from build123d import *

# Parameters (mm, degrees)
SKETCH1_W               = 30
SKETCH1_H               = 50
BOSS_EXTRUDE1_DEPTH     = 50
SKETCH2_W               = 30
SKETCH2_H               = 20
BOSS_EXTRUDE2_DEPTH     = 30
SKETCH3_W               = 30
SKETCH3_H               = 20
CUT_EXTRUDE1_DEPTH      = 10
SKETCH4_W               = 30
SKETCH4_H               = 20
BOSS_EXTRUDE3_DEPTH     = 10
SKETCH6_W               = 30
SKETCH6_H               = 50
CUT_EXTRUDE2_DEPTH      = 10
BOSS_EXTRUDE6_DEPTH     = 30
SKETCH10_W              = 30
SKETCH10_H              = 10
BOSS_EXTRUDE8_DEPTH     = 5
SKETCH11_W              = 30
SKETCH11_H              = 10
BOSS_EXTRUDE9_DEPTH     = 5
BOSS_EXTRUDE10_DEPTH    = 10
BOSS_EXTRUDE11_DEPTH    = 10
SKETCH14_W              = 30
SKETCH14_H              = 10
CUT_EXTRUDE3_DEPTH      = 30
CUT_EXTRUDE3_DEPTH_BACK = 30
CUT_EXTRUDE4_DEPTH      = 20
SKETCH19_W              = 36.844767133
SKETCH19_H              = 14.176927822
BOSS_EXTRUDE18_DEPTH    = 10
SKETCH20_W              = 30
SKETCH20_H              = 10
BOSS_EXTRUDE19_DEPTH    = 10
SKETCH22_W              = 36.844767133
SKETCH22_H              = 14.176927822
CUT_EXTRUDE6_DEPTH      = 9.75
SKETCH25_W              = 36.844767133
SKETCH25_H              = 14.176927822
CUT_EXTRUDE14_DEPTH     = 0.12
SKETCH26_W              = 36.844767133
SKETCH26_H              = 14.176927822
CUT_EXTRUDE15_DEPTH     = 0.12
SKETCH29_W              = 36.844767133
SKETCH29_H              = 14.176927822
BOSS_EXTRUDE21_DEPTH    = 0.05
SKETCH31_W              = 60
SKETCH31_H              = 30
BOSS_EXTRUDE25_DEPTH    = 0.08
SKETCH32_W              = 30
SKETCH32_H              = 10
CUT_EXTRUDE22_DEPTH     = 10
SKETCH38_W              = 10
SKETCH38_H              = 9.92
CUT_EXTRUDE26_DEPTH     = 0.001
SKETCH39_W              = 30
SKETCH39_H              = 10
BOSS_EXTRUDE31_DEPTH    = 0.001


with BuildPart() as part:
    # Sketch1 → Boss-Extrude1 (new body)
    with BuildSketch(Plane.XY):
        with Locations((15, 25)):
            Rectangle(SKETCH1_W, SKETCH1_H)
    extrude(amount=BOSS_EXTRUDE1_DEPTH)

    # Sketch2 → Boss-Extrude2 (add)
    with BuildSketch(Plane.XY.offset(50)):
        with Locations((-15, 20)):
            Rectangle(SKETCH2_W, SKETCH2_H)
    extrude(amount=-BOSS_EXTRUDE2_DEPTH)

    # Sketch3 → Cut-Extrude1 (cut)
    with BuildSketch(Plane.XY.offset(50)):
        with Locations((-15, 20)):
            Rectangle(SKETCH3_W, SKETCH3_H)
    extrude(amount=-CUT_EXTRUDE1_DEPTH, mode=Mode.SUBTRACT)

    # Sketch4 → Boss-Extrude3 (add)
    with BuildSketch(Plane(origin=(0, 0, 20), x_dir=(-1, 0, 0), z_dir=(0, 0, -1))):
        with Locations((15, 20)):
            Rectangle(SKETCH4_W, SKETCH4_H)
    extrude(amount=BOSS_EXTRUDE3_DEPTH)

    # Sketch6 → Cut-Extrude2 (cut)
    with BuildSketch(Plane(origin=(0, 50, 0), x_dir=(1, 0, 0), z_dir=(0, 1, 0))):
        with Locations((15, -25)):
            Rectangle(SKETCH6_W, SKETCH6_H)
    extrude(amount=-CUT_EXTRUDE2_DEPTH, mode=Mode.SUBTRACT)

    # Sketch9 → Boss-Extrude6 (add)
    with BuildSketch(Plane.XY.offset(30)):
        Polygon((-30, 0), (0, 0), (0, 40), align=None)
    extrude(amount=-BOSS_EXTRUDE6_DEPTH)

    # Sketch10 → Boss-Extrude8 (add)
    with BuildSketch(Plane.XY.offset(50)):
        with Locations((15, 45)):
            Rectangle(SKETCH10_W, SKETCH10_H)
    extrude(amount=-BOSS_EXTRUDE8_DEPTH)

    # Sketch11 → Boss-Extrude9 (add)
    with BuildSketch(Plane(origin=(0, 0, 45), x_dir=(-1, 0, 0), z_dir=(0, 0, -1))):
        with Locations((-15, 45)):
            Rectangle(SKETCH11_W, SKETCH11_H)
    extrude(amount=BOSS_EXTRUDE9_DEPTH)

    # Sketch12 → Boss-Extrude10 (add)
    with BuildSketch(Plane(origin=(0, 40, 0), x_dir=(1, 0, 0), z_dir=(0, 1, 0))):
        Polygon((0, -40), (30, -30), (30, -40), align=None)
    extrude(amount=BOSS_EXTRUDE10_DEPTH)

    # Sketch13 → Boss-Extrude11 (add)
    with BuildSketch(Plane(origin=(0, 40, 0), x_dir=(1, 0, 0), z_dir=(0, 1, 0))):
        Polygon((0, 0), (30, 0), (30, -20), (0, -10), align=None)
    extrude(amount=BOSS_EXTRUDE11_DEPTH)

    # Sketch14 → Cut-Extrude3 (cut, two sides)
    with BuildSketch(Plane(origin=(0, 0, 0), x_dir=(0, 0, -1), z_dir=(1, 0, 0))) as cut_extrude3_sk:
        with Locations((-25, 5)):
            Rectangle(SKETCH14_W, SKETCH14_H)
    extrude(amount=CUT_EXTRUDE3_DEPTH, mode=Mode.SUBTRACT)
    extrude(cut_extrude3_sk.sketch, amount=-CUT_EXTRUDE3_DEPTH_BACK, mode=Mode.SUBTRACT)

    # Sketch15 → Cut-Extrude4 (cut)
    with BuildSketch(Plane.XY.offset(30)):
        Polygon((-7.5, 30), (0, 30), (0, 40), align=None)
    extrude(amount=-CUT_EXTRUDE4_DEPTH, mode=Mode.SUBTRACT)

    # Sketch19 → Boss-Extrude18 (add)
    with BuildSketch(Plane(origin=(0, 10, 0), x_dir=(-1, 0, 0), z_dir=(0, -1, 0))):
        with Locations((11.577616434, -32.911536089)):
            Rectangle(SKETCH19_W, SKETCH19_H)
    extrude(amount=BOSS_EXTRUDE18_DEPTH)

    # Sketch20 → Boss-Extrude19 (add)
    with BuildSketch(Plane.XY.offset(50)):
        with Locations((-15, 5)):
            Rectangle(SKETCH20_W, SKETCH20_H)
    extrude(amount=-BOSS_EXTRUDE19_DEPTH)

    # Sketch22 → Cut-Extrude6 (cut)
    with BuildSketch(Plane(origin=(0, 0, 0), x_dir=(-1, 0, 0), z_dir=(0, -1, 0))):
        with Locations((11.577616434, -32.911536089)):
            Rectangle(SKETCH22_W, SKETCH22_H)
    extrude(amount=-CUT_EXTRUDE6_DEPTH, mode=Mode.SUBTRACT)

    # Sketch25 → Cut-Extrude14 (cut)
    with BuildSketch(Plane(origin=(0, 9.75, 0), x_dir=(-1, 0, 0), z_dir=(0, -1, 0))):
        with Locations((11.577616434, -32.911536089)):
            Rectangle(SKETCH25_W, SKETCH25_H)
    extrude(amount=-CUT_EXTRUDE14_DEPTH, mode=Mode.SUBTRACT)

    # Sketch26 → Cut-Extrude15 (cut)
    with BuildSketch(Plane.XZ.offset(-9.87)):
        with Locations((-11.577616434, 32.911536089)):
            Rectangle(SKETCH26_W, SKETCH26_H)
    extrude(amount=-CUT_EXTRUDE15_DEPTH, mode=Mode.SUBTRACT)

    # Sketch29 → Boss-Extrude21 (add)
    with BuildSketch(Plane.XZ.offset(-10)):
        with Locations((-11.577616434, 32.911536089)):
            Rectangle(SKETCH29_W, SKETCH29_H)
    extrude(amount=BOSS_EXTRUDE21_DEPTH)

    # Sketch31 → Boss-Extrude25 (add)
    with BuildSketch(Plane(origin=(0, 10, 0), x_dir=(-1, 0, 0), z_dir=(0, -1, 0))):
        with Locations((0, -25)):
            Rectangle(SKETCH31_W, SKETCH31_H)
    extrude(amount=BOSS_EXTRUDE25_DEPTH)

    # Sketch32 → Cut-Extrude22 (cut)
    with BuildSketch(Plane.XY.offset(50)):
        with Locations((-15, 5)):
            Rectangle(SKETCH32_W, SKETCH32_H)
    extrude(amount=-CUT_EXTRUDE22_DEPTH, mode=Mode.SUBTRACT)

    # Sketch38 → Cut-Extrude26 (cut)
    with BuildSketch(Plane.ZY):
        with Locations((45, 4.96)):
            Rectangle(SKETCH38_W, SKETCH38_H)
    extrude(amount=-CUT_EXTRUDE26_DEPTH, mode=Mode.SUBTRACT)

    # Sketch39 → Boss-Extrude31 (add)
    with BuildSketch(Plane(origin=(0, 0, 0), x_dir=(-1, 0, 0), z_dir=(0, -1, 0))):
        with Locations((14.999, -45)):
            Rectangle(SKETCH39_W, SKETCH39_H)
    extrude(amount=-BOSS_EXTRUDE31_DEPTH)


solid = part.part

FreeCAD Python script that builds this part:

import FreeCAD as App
import Part
import Sketcher
from FreeCAD import Vector
Q = App.Units.Quantity


def add_polygon(sketch, points):
    """Adds a closed chain of lines whose ends are joined by coincident constraints."""
    first, n = sketch.GeometryCount, len(points)
    for a, b in zip(points, points[1:] + points[:1]):
        sketch.addGeometry(Part.LineSegment(App.Vector(*a, 0), App.Vector(*b, 0)), False)
    for i in range(n):
        sketch.addConstraint(Sketcher.Constraint("Coincident", first + i, 2, first + (i + 1) % n, 1))

doc = App.newDocument("Part")
body = doc.addObject("PartDesign::Body", "Body")

# Sketch on XY plane
sketch1 = body.newObject("Sketcher::SketchObject", "Sketch")
sketch1.AttachmentSupport = (doc.getObject("XY_Plane"), [""])
sketch1.MapMode = "FlatFace"
add_polygon(sketch1, [(0, 50), (0, 0), (30, 0), (30, 50)])  # lines 0-3
sketch1.addConstraint([
    Sketcher.Constraint("Vertical", 0),
    Sketcher.Constraint("Horizontal", 1),
    Sketcher.Constraint("Vertical", 2),
    Sketcher.Constraint("Horizontal", 3),
    Sketcher.Constraint("Coincident", 0, 2, -1, 1),
    Sketcher.Constraint("DistanceX", 1, 1, 1, 2, Q("30 mm")),
    Sketcher.Constraint("DistanceY", 0, 2, 0, 1, Q("50 mm")),
])
pad1 = body.newObject("PartDesign::Pad", "Pad")
pad1.Profile = sketch1
pad1.Length = 50

# Sketch on XY plane
sketch2 = body.newObject("Sketcher::SketchObject", "Sketch001")
sketch2.AttachmentSupport = (doc.getObject("XY_Plane"), [""])
sketch2.MapMode = "FlatFace"
sketch2.AttachmentOffset = App.Placement(Vector(0, 0, 50), App.Rotation())
add_polygon(sketch2, [(-30, 30), (-30, 10), (0, 10), (0, 30)])  # lines 0-3
sketch2.addConstraint([
    Sketcher.Constraint("Vertical", 0),
    Sketcher.Constraint("Horizontal", 1),
    Sketcher.Constraint("Vertical", 2),
    Sketcher.Constraint("Horizontal", 3),
    Sketcher.Constraint("PointOnObject", 1, 2, -2),
    Sketcher.Constraint("DistanceX", 1, 1, 1, 2, Q("30 mm")),
    Sketcher.Constraint("DistanceY", 0, 2, 0, 1, Q("20 mm")),
    Sketcher.Constraint("DistanceY", -1, 1, 0, 2, Q("10 mm")),
])
pad2 = body.newObject("PartDesign::Pad", "Pad001")
pad2.Profile = sketch2
pad2.Length = 30
pad2.Reversed = True

# Sketch on XY plane
sketch3 = body.newObject("Sketcher::SketchObject", "Sketch002")
sketch3.AttachmentSupport = (doc.getObject("XY_Plane"), [""])
sketch3.MapMode = "FlatFace"
sketch3.AttachmentOffset = App.Placement(Vector(0, 0, 50), App.Rotation())
add_polygon(sketch3, [(-30, 30), (-30, 10), (0, 10), (0, 30)])  # lines 0-3
sketch3.addConstraint([
    Sketcher.Constraint("Vertical", 0),
    Sketcher.Constraint("Horizontal", 1),
    Sketcher.Constraint("Vertical", 2),
    Sketcher.Constraint("Horizontal", 3),
    Sketcher.Constraint("PointOnObject", 1, 2, -2),
    Sketcher.Constraint("DistanceX", 1, 1, 1, 2, Q("30 mm")),
    Sketcher.Constraint("DistanceY", 0, 2, 0, 1, Q("20 mm")),
    Sketcher.Constraint("DistanceY", -1, 1, 0, 2, Q("10 mm")),
])
pocket1 = body.newObject("PartDesign::Pocket", "Pocket")
pocket1.Profile = sketch3
pocket1.Length = 10

# Sketch on XY plane
sketch4 = body.newObject("Sketcher::SketchObject", "Sketch003")
sketch4.AttachmentSupport = (doc.getObject("XY_Plane"), [""])
sketch4.MapMode = "FlatFace"
sketch4.AttachmentOffset = App.Placement(Vector(0, 0, 20), App.Rotation())
add_polygon(sketch4, [(0, 30), (0, 10), (-30, 10), (-30, 30)])  # lines 0-3
sketch4.addConstraint([
    Sketcher.Constraint("Vertical", 0),
    Sketcher.Constraint("Horizontal", 1),
    Sketcher.Constraint("Vertical", 2),
    Sketcher.Constraint("Horizontal", 3),
    Sketcher.Constraint("PointOnObject", 0, 2, -2),
    Sketcher.Constraint("DistanceX", 1, 2, 1, 1, Q("30 mm")),
    Sketcher.Constraint("DistanceY", 0, 2, 0, 1, Q("20 mm")),
    Sketcher.Constraint("DistanceY", -1, 1, 0, 2, Q("10 mm")),
])
pad3 = body.newObject("PartDesign::Pad", "Pad002")
pad3.Profile = sketch4
pad3.Length = 10
pad3.Reversed = True

# Sketch on XZ plane
sketch5 = body.newObject("Sketcher::SketchObject", "Sketch004")
sketch5.AttachmentSupport = (doc.getObject("XZ_Plane"), [""])
sketch5.MapMode = "FlatFace"
sketch5.AttachmentOffset = App.Placement(Vector(0, 0, -50), App.Rotation())
add_polygon(sketch5, [(0, 0), (0, 50), (30, 50), (30, 0)])  # lines 0-3
sketch5.addConstraint([
    Sketcher.Constraint("Vertical", 0),
    Sketcher.Constraint("Horizontal", 1),
    Sketcher.Constraint("Vertical", 2),
    Sketcher.Constraint("Horizontal", 3),
    Sketcher.Constraint("Coincident", 3, 2, -1, 1),
    Sketcher.Constraint("DistanceX", 1, 1, 1, 2, Q("30 mm")),
    Sketcher.Constraint("DistanceY", 0, 1, 0, 2, Q("50 mm")),
])
pocket2 = body.newObject("PartDesign::Pocket", "Pocket001")
pocket2.Profile = sketch5
pocket2.Length = 10
pocket2.Reversed = True

# Sketch on XY plane
sketch6 = body.newObject("Sketcher::SketchObject", "Sketch005")
sketch6.AttachmentSupport = (doc.getObject("XY_Plane"), [""])
sketch6.MapMode = "FlatFace"
sketch6.AttachmentOffset = App.Placement(Vector(0, 0, 30), App.Rotation())
add_polygon(sketch6, [(-30, 0), (0, 0), (0, 40)])  # lines 0-2
sketch6.addConstraint([
    Sketcher.Constraint("Horizontal", 0),
    Sketcher.Constraint("Vertical", 1),
    Sketcher.Constraint("Coincident", 0, 2, -1, 1),
    Sketcher.Constraint("DistanceX", 0, 1, 0, 2, Q("30 mm")),
    Sketcher.Constraint("DistanceY", 1, 1, 1, 2, Q("40 mm")),
])
pad4 = body.newObject("PartDesign::Pad", "Pad003")
pad4.Profile = sketch6
pad4.Length = 30
pad4.Reversed = True

# Sketch on XY plane
sketch7 = body.newObject("Sketcher::SketchObject", "Sketch006")
sketch7.AttachmentSupport = (doc.getObject("XY_Plane"), [""])
sketch7.MapMode = "FlatFace"
sketch7.AttachmentOffset = App.Placement(Vector(0, 0, 50), App.Rotation())
add_polygon(sketch7, [(0, 50), (0, 40), (30, 40), (30, 50)])  # lines 0-3
sketch7.addConstraint([
    Sketcher.Constraint("Vertical", 0),
    Sketcher.Constraint("Horizontal", 1),
    Sketcher.Constraint("Vertical", 2),
    Sketcher.Constraint("Horizontal", 3),
    Sketcher.Constraint("PointOnObject", 0, 2, -2),
    Sketcher.Constraint("DistanceX", 1, 1, 1, 2, Q("30 mm")),
    Sketcher.Constraint("DistanceY", 0, 2, 0, 1, Q("10 mm")),
    Sketcher.Constraint("DistanceY", -1, 1, 0, 2, Q("40 mm")),
])
pad5 = body.newObject("PartDesign::Pad", "Pad004")
pad5.Profile = sketch7
pad5.Length = 5
pad5.Reversed = True

# Sketch on XY plane
sketch8 = body.newObject("Sketcher::SketchObject", "Sketch007")
sketch8.AttachmentSupport = (doc.getObject("XY_Plane"), [""])
sketch8.MapMode = "FlatFace"
sketch8.AttachmentOffset = App.Placement(Vector(0, 0, 45), App.Rotation())
add_polygon(sketch8, [(30, 50), (30, 40), (0, 40), (0, 50)])  # lines 0-3
sketch8.addConstraint([
    Sketcher.Constraint("Vertical", 0),
    Sketcher.Constraint("Horizontal", 1),
    Sketcher.Constraint("Vertical", 2),
    Sketcher.Constraint("Horizontal", 3),
    Sketcher.Constraint("PointOnObject", 1, 2, -2),
    Sketcher.Constraint("DistanceX", 1, 2, 1, 1, Q("30 mm")),
    Sketcher.Constraint("DistanceY", 0, 2, 0, 1, Q("10 mm")),
    Sketcher.Constraint("DistanceY", -1, 1, 0, 2, Q("40 mm")),
])
pad6 = body.newObject("PartDesign::Pad", "Pad005")
pad6.Profile = sketch8
pad6.Length = 5
pad6.Reversed = True

# Sketch on XZ plane
sketch9 = body.newObject("Sketcher::SketchObject", "Sketch008")
sketch9.AttachmentSupport = (doc.getObject("XZ_Plane"), [""])
sketch9.MapMode = "FlatFace"
sketch9.AttachmentOffset = App.Placement(Vector(0, 0, -40), App.Rotation())
add_polygon(sketch9, [(30, 30), (0, 40), (30, 40)])  # lines 0-2
sketch9.addConstraint([
    Sketcher.Constraint("Horizontal", 1),
    Sketcher.Constraint("Vertical", 2),
    Sketcher.Constraint("PointOnObject", 0, 2, -2),
    Sketcher.Constraint("DistanceX", 1, 1, 1, 2, Q("30 mm")),
    Sketcher.Constraint("DistanceY", 2, 2, 2, 1, Q("10 mm")),
    Sketcher.Constraint("DistanceY", -1, 1, 0, 2, Q("40 mm")),
])
pad7 = body.newObject("PartDesign::Pad", "Pad006")
pad7.Profile = sketch9
pad7.Length = 10
pad7.Reversed = True

# Sketch on XZ plane
sketch10 = body.newObject("Sketcher::SketchObject", "Sketch009")
sketch10.AttachmentSupport = (doc.getObject("XZ_Plane"), [""])
sketch10.MapMode = "FlatFace"
sketch10.AttachmentOffset = App.Placement(Vector(0, 0, -40), App.Rotation())
add_polygon(sketch10, [(30, 0), (0, 0), (0, 10), (30, 20)])  # lines 0-3
sketch10.addConstraint([
    Sketcher.Constraint("Horizontal", 0),
    Sketcher.Constraint("Vertical", 1),
    Sketcher.Constraint("Vertical", 3),
    Sketcher.Constraint("Coincident", 0, 2, -1, 1),
    Sketcher.Constraint("DistanceX", 0, 2, 0, 1, Q("30 mm")),
    Sketcher.Constraint("DistanceY", 1, 1, 1, 2, Q("10 mm")),
    Sketcher.Constraint("DistanceY", 3, 2, 3, 1, Q("20 mm")),
])
pad8 = body.newObject("PartDesign::Pad", "Pad007")
pad8.Profile = sketch10
pad8.Length = 10
pad8.Reversed = True

# Sketch on YZ plane
sketch11 = body.newObject("Sketcher::SketchObject", "Sketch010")
sketch11.AttachmentSupport = (doc.getObject("YZ_Plane"), [""])
sketch11.MapMode = "FlatFace"
add_polygon(sketch11, [(10, 40), (0, 40), (0, 10), (10, 10)])  # lines 0-3
sketch11.addConstraint([
    Sketcher.Constraint("Horizontal", 0),
    Sketcher.Constraint("Vertical", 1),
    Sketcher.Constraint("Horizontal", 2),
    Sketcher.Constraint("Vertical", 3),
    Sketcher.Constraint("PointOnObject", 0, 2, -2),
    Sketcher.Constraint("DistanceX", 0, 2, 0, 1, Q("10 mm")),
    Sketcher.Constraint("DistanceY", 1, 2, 1, 1, Q("30 mm")),
    Sketcher.Constraint("DistanceY", -1, 1, 0, 2, Q("40 mm")),
])
pocket3 = body.newObject("PartDesign::Pocket", "Pocket002")
pocket3.Profile = sketch11
pocket3.Type = "ThroughAll"
pocket3.Midplane = True

# Sketch on XY plane
sketch12 = body.newObject("Sketcher::SketchObject", "Sketch011")
sketch12.AttachmentSupport = (doc.getObject("XY_Plane"), [""])
sketch12.MapMode = "FlatFace"
sketch12.AttachmentOffset = App.Placement(Vector(0, 0, 30), App.Rotation())
add_polygon(sketch12, [(-8, 30), (0, 30), (0, 40)])  # lines 0-2
sketch12.addConstraint([
    Sketcher.Constraint("Horizontal", 0),
    Sketcher.Constraint("Vertical", 1),
    Sketcher.Constraint("PointOnObject", 0, 2, -2),
    Sketcher.Constraint("DistanceY", 1, 1, 1, 2, Q("10 mm")),
    Sketcher.Constraint("DistanceX", 0, 1, 0, 2, Q("7.5 mm")),
    Sketcher.Constraint("DistanceY", -1, 1, 0, 2, Q("30 mm")),
])
pocket4 = body.newObject("PartDesign::Pocket", "Pocket003")
pocket4.Profile = sketch12
pocket4.Length = 20

# Sketch on XZ plane
sketch13 = body.newObject("Sketcher::SketchObject", "Sketch012")
sketch13.AttachmentSupport = (doc.getObject("XZ_Plane"), [""])
sketch13.MapMode = "FlatFace"
sketch13.AttachmentOffset = App.Placement(Vector(0, 0, -10), App.Rotation())
add_polygon(sketch13, [(7, 26), (7, 40), (-30, 40), (-30, 26)])  # lines 0-3
sketch13.addConstraint([
    Sketcher.Constraint("Vertical", 0),
    Sketcher.Constraint("Horizontal", 1),
    Sketcher.Constraint("Vertical", 2),
    Sketcher.Constraint("Horizontal", 3),
    Sketcher.Constraint("DistanceY", -1, 1, 0, 2, Q("40 mm")),
    Sketcher.Constraint("DistanceX", 1, 2, -1, 1, Q("30 mm")),
    Sketcher.Constraint("DistanceX", 1, 2, 1, 1, Q("36.844767 mm")),
    Sketcher.Constraint("DistanceY", 0, 1, 0, 2, Q("14.176928 mm")),
])
pad9 = body.newObject("PartDesign::Pad", "Pad008")
pad9.Profile = sketch13
pad9.Length = 10

# Sketch on XY plane
sketch14 = body.newObject("Sketcher::SketchObject", "Sketch013")
sketch14.AttachmentSupport = (doc.getObject("XY_Plane"), [""])
sketch14.MapMode = "FlatFace"
sketch14.AttachmentOffset = App.Placement(Vector(0, 0, 50), App.Rotation())
add_polygon(sketch14, [(-30, 10), (-30, 0), (0, 0), (0, 10)])  # lines 0-3
sketch14.addConstraint([
    Sketcher.Constraint("Vertical", 0),
    Sketcher.Constraint("Horizontal", 1),
    Sketcher.Constraint("Vertical", 2),
    Sketcher.Constraint("Horizontal", 3),
    Sketcher.Constraint("Coincident", 1, 2, -1, 1),
    Sketcher.Constraint("DistanceX", 1, 1, 1, 2, Q("30 mm")),
    Sketcher.Constraint("DistanceY", 0, 2, 0, 1, Q("10 mm")),
])
pad10 = body.newObject("PartDesign::Pad", "Pad009")
pad10.Profile = sketch14
pad10.Length = 10
pad10.Reversed = True

# Sketch on XZ plane
sketch15 = body.newObject("Sketcher::SketchObject", "Sketch014")
sketch15.AttachmentSupport = (doc.getObject("XZ_Plane"), [""])
sketch15.MapMode = "FlatFace"
add_polygon(sketch15, [(7, 26), (7, 40), (-30, 40), (-30, 26)])  # lines 0-3
sketch15.addConstraint([
    Sketcher.Constraint("Vertical", 0),
    Sketcher.Constraint("Horizontal", 1),
    Sketcher.Constraint("Vertical", 2),
    Sketcher.Constraint("Horizontal", 3),
    Sketcher.Constraint("DistanceY", -1, 1, 0, 2, Q("40 mm")),
    Sketcher.Constraint("DistanceX", 1, 2, -1, 1, Q("30 mm")),
    Sketcher.Constraint("DistanceX", 1, 2, 1, 1, Q("36.844767 mm")),
    Sketcher.Constraint("DistanceY", 0, 1, 0, 2, Q("14.176928 mm")),
])
pocket5 = body.newObject("PartDesign::Pocket", "Pocket004")
pocket5.Profile = sketch15
pocket5.Length = 9.75

# Sketch on XZ plane
sketch16 = body.newObject("Sketcher::SketchObject", "Sketch015")
sketch16.AttachmentSupport = (doc.getObject("XZ_Plane"), [""])
sketch16.MapMode = "FlatFace"
sketch16.AttachmentOffset = App.Placement(Vector(0, 0, -9.75), App.Rotation())
add_polygon(sketch16, [(7, 26), (7, 40), (-30, 40), (-30, 26)])  # lines 0-3
sketch16.addConstraint([
    Sketcher.Constraint("Vertical", 0),
    Sketcher.Constraint("Horizontal", 1),
    Sketcher.Constraint("Vertical", 2),
    Sketcher.Constraint("Horizontal", 3),
    Sketcher.Constraint("DistanceY", -1, 1, 0, 2, Q("40 mm")),
    Sketcher.Constraint("DistanceX", 1, 2, -1, 1, Q("30 mm")),
    Sketcher.Constraint("DistanceX", 1, 2, 1, 1, Q("36.844767 mm")),
    Sketcher.Constraint("DistanceY", 0, 1, 0, 2, Q("14.176928 mm")),
])
pocket6 = body.newObject("PartDesign::Pocket", "Pocket005")
pocket6.Profile = sketch16
pocket6.Length = 0.12

# Sketch on XZ plane
sketch17 = body.newObject("Sketcher::SketchObject", "Sketch016")
sketch17.AttachmentSupport = (doc.getObject("XZ_Plane"), [""])
sketch17.MapMode = "FlatFace"
sketch17.AttachmentOffset = App.Placement(Vector(0, 0, -9.87), App.Rotation())
add_polygon(sketch17, [(-30, 40), (-30, 26), (7, 26), (7, 40)])  # lines 0-3
sketch17.addConstraint([
    Sketcher.Constraint("Vertical", 0),
    Sketcher.Constraint("Horizontal", 1),
    Sketcher.Constraint("Vertical", 2),
    Sketcher.Constraint("Horizontal", 3),
    Sketcher.Constraint("DistanceX", 0, 2, -1, 1, Q("30 mm")),
    Sketcher.Constraint("DistanceY", -1, 1, 2, 2, Q("40 mm")),
    Sketcher.Constraint("DistanceX", 1, 1, 1, 2, Q("36.844767 mm")),
    Sketcher.Constraint("DistanceY", 0, 2, 0, 1, Q("14.176928 mm")),
])
pocket7 = body.newObject("PartDesign::Pocket", "Pocket006")
pocket7.Profile = sketch17
pocket7.Length = 0.12

# Sketch on XZ plane
sketch18 = body.newObject("Sketcher::SketchObject", "Sketch017")
sketch18.AttachmentSupport = (doc.getObject("XZ_Plane"), [""])
sketch18.MapMode = "FlatFace"
sketch18.AttachmentOffset = App.Placement(Vector(0, 0, -10), App.Rotation())
add_polygon(sketch18, [(-30, 40), (-30, 26), (7, 26), (7, 40)])  # lines 0-3
sketch18.addConstraint([
    Sketcher.Constraint("Vertical", 0),
    Sketcher.Constraint("Horizontal", 1),
    Sketcher.Constraint("Vertical", 2),
    Sketcher.Constraint("Horizontal", 3),
    Sketcher.Constraint("DistanceX", 0, 2, -1, 1, Q("30 mm")),
    Sketcher.Constraint("DistanceY", -1, 1, 2, 2, Q("40 mm")),
    Sketcher.Constraint("DistanceX", 1, 1, 1, 2, Q("36.844767 mm")),
    Sketcher.Constraint("DistanceY", 0, 2, 0, 1, Q("14.176928 mm")),
])
pad11 = body.newObject("PartDesign::Pad", "Pad010")
pad11.Profile = sketch18
pad11.Length = 0.05

# Sketch on XZ plane
sketch19 = body.newObject("Sketcher::SketchObject", "Sketch018")
sketch19.AttachmentSupport = (doc.getObject("XZ_Plane"), [""])
sketch19.MapMode = "FlatFace"
sketch19.AttachmentOffset = App.Placement(Vector(0, 0, -10), App.Rotation())
add_polygon(sketch19, [(30, 10), (30, 40), (-30, 40), (-30, 10)])  # lines 0-3
sketch19.addConstraint([
    Sketcher.Constraint("Vertical", 0),
    Sketcher.Constraint("Horizontal", 1),
    Sketcher.Constraint("Vertical", 2),
    Sketcher.Constraint("Horizontal", 3),
    Sketcher.Constraint("DistanceX", 1, 2, 1, 1, Q("60 mm")),
    Sketcher.Constraint("DistanceY", 0, 1, 0, 2, Q("30 mm")),
    Sketcher.Constraint("DistanceX", -1, 1, 0, 2, Q("30 mm")),
    Sketcher.Constraint("DistanceY", -1, 1, 0, 2, Q("40 mm")),
])
pad12 = body.newObject("PartDesign::Pad", "Pad011")
pad12.Profile = sketch19
pad12.Length = 0.08

# Sketch on XY plane
sketch20 = body.newObject("Sketcher::SketchObject", "Sketch019")
sketch20.AttachmentSupport = (doc.getObject("XY_Plane"), [""])
sketch20.MapMode = "FlatFace"
sketch20.AttachmentOffset = App.Placement(Vector(0, 0, 50), App.Rotation())
add_polygon(sketch20, [(-30, 10), (-30, 0), (0, 0), (0, 10)])  # lines 0-3
sketch20.addConstraint([
    Sketcher.Constraint("Vertical", 0),
    Sketcher.Constraint("Horizontal", 1),
    Sketcher.Constraint("Vertical", 2),
    Sketcher.Constraint("Horizontal", 3),
    Sketcher.Constraint("Coincident", 1, 2, -1, 1),
    Sketcher.Constraint("DistanceX", 1, 1, 1, 2, Q("30 mm")),
    Sketcher.Constraint("DistanceY", 0, 2, 0, 1, Q("10 mm")),
])
pocket8 = body.newObject("PartDesign::Pocket", "Pocket007")
pocket8.Profile = sketch20
pocket8.Length = 10

# Sketch on YZ plane
sketch21 = body.newObject("Sketcher::SketchObject", "Sketch020")
sketch21.AttachmentSupport = (doc.getObject("YZ_Plane"), [""])
sketch21.MapMode = "FlatFace"
add_polygon(sketch21, [(10, 40), (0, 40), (0, 50), (10, 50)])  # lines 0-3
sketch21.addConstraint([
    Sketcher.Constraint("Horizontal", 0),
    Sketcher.Constraint("Vertical", 1),
    Sketcher.Constraint("Horizontal", 2),
    Sketcher.Constraint("Vertical", 3),
    Sketcher.Constraint("PointOnObject", 0, 2, -2),
    Sketcher.Constraint("DistanceY", 1, 1, 1, 2, Q("10 mm")),
    Sketcher.Constraint("DistanceY", -1, 1, 0, 2, Q("40 mm")),
    Sketcher.Constraint("DistanceX", 0, 2, 0, 1, Q("9.92 mm")),
])
pocket9 = body.newObject("PartDesign::Pocket", "Pocket008")
pocket9.Profile = sketch21
pocket9.Length = 0.001
pocket9.Reversed = True

# Sketch on XZ plane
sketch22 = body.newObject("Sketcher::SketchObject", "Sketch021")
sketch22.AttachmentSupport = (doc.getObject("XZ_Plane"), [""])
sketch22.MapMode = "FlatFace"
add_polygon(sketch22, [(0, 40), (0, 50), (-30, 50), (-30, 40)])  # lines 0-3
sketch22.addConstraint([
    Sketcher.Constraint("Vertical", 0),
    Sketcher.Constraint("Horizontal", 1),
    Sketcher.Constraint("Vertical", 2),
    Sketcher.Constraint("Horizontal", 3),
    Sketcher.Constraint("DistanceX", 1, 2, 1, 1, Q("30 mm")),
    Sketcher.Constraint("DistanceY", 0, 1, 0, 2, Q("10 mm")),
    Sketcher.Constraint("DistanceY", -1, 1, 0, 2, Q("50 mm")),
    Sketcher.Constraint("DistanceX", -1, 1, 0, 2, Q("0.001 mm")),
])
pad13 = body.newObject("PartDesign::Pad", "Pad012")
pad13.Profile = sketch22
pad13.Length = 0.001
pad13.Reversed = True

doc.recompute()
